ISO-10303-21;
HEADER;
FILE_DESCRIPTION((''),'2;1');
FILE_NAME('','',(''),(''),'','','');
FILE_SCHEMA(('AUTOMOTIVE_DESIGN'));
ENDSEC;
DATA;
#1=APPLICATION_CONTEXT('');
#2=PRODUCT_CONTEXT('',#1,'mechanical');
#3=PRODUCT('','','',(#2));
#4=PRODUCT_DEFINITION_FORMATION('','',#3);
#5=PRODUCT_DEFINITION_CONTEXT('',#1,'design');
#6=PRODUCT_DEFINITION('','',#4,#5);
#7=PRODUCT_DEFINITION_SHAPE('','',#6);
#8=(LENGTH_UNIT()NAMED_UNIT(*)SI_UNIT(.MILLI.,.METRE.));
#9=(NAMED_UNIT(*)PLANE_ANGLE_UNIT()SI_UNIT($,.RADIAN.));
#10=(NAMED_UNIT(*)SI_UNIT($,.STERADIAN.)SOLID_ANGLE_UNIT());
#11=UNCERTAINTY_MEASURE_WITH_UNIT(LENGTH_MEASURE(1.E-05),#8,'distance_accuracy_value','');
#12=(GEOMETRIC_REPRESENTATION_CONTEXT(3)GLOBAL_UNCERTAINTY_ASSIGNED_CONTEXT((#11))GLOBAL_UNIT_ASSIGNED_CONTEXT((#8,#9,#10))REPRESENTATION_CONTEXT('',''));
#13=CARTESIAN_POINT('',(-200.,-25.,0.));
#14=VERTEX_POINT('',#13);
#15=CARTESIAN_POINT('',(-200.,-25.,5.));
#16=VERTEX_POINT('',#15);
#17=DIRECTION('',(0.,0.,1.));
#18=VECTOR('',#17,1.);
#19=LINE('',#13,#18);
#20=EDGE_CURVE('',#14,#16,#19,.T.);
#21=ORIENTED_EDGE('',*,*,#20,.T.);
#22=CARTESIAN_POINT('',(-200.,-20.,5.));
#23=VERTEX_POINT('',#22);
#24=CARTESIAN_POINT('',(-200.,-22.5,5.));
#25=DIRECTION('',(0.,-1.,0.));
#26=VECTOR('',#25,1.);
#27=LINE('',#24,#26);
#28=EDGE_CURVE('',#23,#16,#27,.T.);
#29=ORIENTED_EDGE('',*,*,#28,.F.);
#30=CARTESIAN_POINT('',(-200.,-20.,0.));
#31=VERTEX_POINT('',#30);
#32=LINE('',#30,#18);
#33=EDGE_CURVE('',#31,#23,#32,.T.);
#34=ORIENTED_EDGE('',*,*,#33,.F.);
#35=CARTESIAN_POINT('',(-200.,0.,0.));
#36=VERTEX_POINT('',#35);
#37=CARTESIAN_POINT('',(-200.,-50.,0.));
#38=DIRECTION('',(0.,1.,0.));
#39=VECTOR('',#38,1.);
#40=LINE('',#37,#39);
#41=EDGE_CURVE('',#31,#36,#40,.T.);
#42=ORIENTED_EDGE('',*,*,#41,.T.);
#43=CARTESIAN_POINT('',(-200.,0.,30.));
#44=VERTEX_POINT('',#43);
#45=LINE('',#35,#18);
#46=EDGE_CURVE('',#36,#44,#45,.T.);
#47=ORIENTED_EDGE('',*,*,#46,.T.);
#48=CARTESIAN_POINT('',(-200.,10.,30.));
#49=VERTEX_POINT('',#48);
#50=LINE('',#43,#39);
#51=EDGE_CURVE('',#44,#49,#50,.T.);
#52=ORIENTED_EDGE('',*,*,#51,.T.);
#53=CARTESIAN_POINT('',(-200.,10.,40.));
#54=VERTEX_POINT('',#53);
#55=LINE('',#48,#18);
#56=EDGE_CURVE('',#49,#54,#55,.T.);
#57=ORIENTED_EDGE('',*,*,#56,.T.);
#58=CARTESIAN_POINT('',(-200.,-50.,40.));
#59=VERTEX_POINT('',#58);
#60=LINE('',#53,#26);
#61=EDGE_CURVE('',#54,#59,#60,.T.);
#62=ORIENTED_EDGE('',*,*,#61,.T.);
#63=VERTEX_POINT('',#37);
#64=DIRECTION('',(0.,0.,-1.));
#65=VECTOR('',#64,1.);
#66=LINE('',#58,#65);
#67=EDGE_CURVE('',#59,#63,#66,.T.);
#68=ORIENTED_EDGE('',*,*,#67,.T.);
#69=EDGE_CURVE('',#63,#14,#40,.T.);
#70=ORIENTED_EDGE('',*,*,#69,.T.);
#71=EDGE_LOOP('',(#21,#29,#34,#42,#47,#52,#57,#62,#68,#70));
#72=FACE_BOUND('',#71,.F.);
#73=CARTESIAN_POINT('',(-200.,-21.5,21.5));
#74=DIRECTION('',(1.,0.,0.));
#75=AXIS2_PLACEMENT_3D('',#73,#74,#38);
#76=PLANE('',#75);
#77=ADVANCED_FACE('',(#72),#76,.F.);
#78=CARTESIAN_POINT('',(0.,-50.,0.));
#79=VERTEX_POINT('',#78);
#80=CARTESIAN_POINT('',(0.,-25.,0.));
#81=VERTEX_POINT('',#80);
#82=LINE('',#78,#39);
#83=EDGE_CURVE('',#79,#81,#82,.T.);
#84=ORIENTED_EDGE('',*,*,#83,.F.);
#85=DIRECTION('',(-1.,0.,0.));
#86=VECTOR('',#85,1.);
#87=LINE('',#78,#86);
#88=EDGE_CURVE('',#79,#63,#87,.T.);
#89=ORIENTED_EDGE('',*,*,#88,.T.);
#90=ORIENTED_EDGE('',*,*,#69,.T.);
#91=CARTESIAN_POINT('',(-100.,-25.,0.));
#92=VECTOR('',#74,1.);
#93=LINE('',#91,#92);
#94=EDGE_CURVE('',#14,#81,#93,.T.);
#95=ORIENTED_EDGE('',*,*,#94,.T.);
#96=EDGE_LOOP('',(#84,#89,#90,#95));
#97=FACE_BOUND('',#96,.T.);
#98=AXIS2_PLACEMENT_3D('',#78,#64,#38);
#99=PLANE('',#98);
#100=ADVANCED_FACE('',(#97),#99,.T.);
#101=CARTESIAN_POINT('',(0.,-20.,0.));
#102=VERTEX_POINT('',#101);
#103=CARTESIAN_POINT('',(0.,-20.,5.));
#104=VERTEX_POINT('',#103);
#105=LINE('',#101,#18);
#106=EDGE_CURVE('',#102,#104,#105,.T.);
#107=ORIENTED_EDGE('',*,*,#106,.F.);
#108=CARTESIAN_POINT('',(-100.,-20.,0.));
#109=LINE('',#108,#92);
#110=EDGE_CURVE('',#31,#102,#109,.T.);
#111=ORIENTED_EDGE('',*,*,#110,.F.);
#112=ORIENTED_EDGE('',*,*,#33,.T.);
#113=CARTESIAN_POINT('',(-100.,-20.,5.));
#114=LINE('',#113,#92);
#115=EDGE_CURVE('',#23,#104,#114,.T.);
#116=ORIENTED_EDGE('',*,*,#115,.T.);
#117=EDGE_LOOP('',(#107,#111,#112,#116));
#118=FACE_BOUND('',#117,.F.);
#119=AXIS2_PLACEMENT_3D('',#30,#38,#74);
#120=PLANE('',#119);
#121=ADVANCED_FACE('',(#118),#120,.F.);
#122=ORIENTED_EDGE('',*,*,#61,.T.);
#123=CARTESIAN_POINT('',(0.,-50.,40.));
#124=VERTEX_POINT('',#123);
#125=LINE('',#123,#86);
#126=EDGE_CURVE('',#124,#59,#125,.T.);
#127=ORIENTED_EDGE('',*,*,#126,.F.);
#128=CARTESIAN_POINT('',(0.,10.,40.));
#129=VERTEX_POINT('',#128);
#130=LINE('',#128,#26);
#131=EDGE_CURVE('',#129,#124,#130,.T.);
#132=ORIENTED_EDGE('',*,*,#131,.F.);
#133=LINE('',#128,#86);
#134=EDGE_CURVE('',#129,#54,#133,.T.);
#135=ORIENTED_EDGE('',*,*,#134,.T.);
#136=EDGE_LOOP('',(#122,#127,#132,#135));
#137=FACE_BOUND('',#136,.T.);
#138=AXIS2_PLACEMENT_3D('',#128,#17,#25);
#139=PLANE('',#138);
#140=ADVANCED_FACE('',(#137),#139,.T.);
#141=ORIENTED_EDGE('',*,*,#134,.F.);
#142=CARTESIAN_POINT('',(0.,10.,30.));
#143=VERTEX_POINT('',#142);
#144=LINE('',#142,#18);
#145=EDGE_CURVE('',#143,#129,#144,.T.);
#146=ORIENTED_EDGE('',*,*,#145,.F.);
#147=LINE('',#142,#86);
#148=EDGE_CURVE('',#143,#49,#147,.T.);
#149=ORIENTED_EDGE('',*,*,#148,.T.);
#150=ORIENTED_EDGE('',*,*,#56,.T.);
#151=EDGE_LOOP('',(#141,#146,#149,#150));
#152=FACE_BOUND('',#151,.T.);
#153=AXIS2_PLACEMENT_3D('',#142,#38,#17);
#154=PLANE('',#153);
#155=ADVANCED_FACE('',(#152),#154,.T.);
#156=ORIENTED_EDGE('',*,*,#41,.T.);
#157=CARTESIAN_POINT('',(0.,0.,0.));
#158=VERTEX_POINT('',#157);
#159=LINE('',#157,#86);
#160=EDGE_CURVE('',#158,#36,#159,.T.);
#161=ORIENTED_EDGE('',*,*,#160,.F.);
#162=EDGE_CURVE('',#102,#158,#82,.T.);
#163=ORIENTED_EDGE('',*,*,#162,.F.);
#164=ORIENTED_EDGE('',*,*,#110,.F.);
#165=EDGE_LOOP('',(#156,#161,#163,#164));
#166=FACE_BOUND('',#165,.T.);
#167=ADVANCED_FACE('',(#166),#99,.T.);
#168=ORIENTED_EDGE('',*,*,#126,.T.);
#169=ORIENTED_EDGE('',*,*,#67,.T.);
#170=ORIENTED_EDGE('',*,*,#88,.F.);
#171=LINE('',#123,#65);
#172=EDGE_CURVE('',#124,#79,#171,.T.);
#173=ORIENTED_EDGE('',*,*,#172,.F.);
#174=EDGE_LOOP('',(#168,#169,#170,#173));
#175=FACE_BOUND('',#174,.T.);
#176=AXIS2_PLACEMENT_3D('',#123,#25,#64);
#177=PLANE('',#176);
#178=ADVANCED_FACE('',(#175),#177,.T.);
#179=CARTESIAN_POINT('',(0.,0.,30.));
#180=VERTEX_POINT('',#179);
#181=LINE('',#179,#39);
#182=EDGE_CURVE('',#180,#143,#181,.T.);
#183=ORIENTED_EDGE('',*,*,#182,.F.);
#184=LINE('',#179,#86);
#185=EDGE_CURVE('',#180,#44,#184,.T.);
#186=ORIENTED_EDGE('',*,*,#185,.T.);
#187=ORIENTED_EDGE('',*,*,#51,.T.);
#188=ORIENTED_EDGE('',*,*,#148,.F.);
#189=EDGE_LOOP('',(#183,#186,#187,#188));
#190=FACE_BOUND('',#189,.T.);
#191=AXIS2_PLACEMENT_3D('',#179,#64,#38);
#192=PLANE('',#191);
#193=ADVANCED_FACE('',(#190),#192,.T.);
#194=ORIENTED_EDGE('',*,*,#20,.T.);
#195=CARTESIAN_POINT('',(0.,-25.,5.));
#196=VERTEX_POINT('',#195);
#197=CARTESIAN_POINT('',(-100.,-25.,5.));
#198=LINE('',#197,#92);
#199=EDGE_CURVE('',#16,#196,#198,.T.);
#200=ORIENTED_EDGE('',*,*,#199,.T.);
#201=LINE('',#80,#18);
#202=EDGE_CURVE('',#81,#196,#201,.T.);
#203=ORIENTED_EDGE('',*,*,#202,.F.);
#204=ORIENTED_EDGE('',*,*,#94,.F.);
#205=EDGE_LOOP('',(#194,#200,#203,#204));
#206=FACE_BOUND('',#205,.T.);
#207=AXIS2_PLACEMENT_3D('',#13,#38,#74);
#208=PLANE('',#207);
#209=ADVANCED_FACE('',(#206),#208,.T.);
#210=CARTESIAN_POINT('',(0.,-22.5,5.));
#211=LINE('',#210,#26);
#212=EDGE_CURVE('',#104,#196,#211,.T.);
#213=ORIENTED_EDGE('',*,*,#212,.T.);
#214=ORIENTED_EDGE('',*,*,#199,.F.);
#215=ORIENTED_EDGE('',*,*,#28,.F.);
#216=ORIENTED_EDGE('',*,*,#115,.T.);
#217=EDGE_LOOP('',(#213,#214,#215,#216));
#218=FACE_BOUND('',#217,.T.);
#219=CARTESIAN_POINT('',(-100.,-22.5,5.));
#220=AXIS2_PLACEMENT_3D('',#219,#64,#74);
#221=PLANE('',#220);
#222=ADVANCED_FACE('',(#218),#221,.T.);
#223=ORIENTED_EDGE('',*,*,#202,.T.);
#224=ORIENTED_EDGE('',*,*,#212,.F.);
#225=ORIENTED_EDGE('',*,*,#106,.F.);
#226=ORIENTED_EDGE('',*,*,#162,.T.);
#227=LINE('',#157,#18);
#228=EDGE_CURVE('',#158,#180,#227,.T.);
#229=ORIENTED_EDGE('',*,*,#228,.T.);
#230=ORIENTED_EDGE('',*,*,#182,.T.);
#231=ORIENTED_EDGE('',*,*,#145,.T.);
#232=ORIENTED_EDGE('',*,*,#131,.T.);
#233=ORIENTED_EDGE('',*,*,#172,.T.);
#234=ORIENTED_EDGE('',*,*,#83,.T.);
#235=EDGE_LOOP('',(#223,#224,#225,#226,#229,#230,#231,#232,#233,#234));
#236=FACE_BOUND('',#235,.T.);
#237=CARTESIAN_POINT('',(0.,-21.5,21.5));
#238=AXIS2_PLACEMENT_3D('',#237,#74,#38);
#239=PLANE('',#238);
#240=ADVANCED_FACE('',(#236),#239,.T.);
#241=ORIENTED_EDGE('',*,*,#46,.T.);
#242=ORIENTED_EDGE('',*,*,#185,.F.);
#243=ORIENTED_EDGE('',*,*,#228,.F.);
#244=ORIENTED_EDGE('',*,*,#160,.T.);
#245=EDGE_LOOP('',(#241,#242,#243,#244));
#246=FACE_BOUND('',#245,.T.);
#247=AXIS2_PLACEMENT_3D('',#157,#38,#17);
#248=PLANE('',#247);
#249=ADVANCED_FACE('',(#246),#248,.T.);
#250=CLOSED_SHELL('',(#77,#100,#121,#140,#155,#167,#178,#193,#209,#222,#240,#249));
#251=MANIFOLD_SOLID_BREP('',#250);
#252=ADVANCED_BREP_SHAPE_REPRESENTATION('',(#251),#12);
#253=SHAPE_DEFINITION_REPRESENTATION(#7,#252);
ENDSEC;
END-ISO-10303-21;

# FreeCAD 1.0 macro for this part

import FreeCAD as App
import Part
import Sketcher
Q = App.Units.Quantity

doc = App.newDocument("Part")
body = doc.addObject("PartDesign::Body", "Body")

# Sketch on YZ plane
sketch1 = body.newObject("Sketcher::SketchObject", "Sketch")
sketch1.AttachmentSupport = (doc.getObject("YZ_Plane"), [""])
sketch1.MapMode = "FlatFace"
sketch1.addGeometry(Part.LineSegment(App.Vector(10, 30, 0), App.Vector(10, 40, 0)), False)
sketch1.addGeometry(Part.LineSegment(App.Vector(10, 40, 0), App.Vector(-50, 40, 0)), False)
sketch1.addGeometry(Part.LineSegment(App.Vector(-50, 40, 0), App.Vector(-50, 0, 0)), False)
sketch1.addGeometry(Part.LineSegment(App.Vector(-50, 0, 0), App.Vector(0, 0, 0)), False)
sketch1.addGeometry(Part.LineSegment(App.Vector(0, 0, 0), App.Vector(0, 30, 0)), False)
sketch1.addGeometry(Part.LineSegment(App.Vector(0, 30, 0), App.Vector(10, 30, 0)), False)
sketch1.addConstraint(Sketcher.Constraint("Coincident", 0, 2, 1, 1))
sketch1.addConstraint(Sketcher.Constraint("Coincident", 1, 2, 2, 1))
sketch1.addConstraint(Sketcher.Constraint("Coincident", 2, 2, 3, 1))
sketch1.addConstraint(Sketcher.Constraint("Coincident", 3, 2, 4, 1))
sketch1.addConstraint(Sketcher.Constraint("Coincident", 4, 2, 5, 1))
sketch1.addConstraint(Sketcher.Constraint("Coincident", 5, 2, 0, 1))
sketch1.addConstraint(Sketcher.Constraint("Vertical", 0))
sketch1.addConstraint(Sketcher.Constraint("Horizontal", 1))
sketch1.addConstraint(Sketcher.Constraint("Vertical", 2))
sketch1.addConstraint(Sketcher.Constraint("Horizontal", 3))
sketch1.addConstraint(Sketcher.Constraint("Vertical", 4))
sketch1.addConstraint(Sketcher.Constraint("Horizontal", 5))
sketch1.addConstraint(Sketcher.Constraint("Coincident", 3, 2, -1, 1))
sketch1.addConstraint(Sketcher.Constraint("Equal", 5, 0))
sketch1.addConstraint(Sketcher.Constraint("DistanceX", 1, 2, 1, 1, Q("60 mm")))
sketch1.addConstraint(Sketcher.Constraint("DistanceX", 3, 1, 3, 2, Q("50 mm")))
sketch1.addConstraint(Sketcher.Constraint("DistanceY", 2, 2, 2, 1, Q("40 mm")))
pad1 = body.newObject("PartDesign::Pad", "Pad")
pad1.Profile = sketch1
pad1.Length = 200
pad1.Reversed = True

# Sketch on XY plane
sketch2 = body.newObject("Sketcher::SketchObject", "Sketch001")
sketch2.AttachmentSupport = (doc.getObject("XY_Plane"), [""])
sketch2.MapMode = "FlatFace"
sketch2.addGeometry(Part.LineSegment(App.Vector(-200, -25, 0), App.Vector(-200, -20, 0)), False)
sketch2.addGeometry(Part.LineSegment(App.Vector(-200, -20, 0), App.Vector(0, -20, 0)), False)
sketch2.addGeometry(Part.LineSegment(App.Vector(0, -20, 0), App.Vector(0, -25, 0)), False)
sketch2.addGeometry(Part.LineSegment(App.Vector(0, -25, 0), App.Vector(-200, -25, 0)), False)
sketch2.addConstraint(Sketcher.Constraint("Coincident", 0, 2, 1, 1))
sketch2.addConstraint(Sketcher.Constraint("Coincident", 1, 2, 2, 1))
sketch2.addConstraint(Sketcher.Constraint("Coincident", 2, 2, 3, 1))
sketch2.addConstraint(Sketcher.Constraint("Coincident", 3, 2, 0, 1))
sketch2.addConstraint(Sketcher.Constraint("Vertical", 0))
sketch2.addConstraint(Sketcher.Constraint("Horizontal", 1))
sketch2.addConstraint(Sketcher.Constraint("Vertical", 2))
sketch2.addConstraint(Sketcher.Constraint("Horizontal", 3))
sketch2.addConstraint(Sketcher.Constraint("PointOnObject", 1, 2, -2))
sketch2.addConstraint(Sketcher.Constraint("DistanceX", 1, 1, 1, 2, Q("200 mm")))
sketch2.addConstraint(Sketcher.Constraint("DistanceY", 0, 1, 0, 2, Q("5 mm")))
sketch2.addConstraint(Sketcher.Constraint("DistanceY", 0, 2, -1, 1, Q("20 mm")))
pocket1 = body.newObject("PartDesign::Pocket", "Pocket")
pocket1.Profile = sketch2
pocket1.Length = 5
pocket1.Reversed = True

doc.recompute()
